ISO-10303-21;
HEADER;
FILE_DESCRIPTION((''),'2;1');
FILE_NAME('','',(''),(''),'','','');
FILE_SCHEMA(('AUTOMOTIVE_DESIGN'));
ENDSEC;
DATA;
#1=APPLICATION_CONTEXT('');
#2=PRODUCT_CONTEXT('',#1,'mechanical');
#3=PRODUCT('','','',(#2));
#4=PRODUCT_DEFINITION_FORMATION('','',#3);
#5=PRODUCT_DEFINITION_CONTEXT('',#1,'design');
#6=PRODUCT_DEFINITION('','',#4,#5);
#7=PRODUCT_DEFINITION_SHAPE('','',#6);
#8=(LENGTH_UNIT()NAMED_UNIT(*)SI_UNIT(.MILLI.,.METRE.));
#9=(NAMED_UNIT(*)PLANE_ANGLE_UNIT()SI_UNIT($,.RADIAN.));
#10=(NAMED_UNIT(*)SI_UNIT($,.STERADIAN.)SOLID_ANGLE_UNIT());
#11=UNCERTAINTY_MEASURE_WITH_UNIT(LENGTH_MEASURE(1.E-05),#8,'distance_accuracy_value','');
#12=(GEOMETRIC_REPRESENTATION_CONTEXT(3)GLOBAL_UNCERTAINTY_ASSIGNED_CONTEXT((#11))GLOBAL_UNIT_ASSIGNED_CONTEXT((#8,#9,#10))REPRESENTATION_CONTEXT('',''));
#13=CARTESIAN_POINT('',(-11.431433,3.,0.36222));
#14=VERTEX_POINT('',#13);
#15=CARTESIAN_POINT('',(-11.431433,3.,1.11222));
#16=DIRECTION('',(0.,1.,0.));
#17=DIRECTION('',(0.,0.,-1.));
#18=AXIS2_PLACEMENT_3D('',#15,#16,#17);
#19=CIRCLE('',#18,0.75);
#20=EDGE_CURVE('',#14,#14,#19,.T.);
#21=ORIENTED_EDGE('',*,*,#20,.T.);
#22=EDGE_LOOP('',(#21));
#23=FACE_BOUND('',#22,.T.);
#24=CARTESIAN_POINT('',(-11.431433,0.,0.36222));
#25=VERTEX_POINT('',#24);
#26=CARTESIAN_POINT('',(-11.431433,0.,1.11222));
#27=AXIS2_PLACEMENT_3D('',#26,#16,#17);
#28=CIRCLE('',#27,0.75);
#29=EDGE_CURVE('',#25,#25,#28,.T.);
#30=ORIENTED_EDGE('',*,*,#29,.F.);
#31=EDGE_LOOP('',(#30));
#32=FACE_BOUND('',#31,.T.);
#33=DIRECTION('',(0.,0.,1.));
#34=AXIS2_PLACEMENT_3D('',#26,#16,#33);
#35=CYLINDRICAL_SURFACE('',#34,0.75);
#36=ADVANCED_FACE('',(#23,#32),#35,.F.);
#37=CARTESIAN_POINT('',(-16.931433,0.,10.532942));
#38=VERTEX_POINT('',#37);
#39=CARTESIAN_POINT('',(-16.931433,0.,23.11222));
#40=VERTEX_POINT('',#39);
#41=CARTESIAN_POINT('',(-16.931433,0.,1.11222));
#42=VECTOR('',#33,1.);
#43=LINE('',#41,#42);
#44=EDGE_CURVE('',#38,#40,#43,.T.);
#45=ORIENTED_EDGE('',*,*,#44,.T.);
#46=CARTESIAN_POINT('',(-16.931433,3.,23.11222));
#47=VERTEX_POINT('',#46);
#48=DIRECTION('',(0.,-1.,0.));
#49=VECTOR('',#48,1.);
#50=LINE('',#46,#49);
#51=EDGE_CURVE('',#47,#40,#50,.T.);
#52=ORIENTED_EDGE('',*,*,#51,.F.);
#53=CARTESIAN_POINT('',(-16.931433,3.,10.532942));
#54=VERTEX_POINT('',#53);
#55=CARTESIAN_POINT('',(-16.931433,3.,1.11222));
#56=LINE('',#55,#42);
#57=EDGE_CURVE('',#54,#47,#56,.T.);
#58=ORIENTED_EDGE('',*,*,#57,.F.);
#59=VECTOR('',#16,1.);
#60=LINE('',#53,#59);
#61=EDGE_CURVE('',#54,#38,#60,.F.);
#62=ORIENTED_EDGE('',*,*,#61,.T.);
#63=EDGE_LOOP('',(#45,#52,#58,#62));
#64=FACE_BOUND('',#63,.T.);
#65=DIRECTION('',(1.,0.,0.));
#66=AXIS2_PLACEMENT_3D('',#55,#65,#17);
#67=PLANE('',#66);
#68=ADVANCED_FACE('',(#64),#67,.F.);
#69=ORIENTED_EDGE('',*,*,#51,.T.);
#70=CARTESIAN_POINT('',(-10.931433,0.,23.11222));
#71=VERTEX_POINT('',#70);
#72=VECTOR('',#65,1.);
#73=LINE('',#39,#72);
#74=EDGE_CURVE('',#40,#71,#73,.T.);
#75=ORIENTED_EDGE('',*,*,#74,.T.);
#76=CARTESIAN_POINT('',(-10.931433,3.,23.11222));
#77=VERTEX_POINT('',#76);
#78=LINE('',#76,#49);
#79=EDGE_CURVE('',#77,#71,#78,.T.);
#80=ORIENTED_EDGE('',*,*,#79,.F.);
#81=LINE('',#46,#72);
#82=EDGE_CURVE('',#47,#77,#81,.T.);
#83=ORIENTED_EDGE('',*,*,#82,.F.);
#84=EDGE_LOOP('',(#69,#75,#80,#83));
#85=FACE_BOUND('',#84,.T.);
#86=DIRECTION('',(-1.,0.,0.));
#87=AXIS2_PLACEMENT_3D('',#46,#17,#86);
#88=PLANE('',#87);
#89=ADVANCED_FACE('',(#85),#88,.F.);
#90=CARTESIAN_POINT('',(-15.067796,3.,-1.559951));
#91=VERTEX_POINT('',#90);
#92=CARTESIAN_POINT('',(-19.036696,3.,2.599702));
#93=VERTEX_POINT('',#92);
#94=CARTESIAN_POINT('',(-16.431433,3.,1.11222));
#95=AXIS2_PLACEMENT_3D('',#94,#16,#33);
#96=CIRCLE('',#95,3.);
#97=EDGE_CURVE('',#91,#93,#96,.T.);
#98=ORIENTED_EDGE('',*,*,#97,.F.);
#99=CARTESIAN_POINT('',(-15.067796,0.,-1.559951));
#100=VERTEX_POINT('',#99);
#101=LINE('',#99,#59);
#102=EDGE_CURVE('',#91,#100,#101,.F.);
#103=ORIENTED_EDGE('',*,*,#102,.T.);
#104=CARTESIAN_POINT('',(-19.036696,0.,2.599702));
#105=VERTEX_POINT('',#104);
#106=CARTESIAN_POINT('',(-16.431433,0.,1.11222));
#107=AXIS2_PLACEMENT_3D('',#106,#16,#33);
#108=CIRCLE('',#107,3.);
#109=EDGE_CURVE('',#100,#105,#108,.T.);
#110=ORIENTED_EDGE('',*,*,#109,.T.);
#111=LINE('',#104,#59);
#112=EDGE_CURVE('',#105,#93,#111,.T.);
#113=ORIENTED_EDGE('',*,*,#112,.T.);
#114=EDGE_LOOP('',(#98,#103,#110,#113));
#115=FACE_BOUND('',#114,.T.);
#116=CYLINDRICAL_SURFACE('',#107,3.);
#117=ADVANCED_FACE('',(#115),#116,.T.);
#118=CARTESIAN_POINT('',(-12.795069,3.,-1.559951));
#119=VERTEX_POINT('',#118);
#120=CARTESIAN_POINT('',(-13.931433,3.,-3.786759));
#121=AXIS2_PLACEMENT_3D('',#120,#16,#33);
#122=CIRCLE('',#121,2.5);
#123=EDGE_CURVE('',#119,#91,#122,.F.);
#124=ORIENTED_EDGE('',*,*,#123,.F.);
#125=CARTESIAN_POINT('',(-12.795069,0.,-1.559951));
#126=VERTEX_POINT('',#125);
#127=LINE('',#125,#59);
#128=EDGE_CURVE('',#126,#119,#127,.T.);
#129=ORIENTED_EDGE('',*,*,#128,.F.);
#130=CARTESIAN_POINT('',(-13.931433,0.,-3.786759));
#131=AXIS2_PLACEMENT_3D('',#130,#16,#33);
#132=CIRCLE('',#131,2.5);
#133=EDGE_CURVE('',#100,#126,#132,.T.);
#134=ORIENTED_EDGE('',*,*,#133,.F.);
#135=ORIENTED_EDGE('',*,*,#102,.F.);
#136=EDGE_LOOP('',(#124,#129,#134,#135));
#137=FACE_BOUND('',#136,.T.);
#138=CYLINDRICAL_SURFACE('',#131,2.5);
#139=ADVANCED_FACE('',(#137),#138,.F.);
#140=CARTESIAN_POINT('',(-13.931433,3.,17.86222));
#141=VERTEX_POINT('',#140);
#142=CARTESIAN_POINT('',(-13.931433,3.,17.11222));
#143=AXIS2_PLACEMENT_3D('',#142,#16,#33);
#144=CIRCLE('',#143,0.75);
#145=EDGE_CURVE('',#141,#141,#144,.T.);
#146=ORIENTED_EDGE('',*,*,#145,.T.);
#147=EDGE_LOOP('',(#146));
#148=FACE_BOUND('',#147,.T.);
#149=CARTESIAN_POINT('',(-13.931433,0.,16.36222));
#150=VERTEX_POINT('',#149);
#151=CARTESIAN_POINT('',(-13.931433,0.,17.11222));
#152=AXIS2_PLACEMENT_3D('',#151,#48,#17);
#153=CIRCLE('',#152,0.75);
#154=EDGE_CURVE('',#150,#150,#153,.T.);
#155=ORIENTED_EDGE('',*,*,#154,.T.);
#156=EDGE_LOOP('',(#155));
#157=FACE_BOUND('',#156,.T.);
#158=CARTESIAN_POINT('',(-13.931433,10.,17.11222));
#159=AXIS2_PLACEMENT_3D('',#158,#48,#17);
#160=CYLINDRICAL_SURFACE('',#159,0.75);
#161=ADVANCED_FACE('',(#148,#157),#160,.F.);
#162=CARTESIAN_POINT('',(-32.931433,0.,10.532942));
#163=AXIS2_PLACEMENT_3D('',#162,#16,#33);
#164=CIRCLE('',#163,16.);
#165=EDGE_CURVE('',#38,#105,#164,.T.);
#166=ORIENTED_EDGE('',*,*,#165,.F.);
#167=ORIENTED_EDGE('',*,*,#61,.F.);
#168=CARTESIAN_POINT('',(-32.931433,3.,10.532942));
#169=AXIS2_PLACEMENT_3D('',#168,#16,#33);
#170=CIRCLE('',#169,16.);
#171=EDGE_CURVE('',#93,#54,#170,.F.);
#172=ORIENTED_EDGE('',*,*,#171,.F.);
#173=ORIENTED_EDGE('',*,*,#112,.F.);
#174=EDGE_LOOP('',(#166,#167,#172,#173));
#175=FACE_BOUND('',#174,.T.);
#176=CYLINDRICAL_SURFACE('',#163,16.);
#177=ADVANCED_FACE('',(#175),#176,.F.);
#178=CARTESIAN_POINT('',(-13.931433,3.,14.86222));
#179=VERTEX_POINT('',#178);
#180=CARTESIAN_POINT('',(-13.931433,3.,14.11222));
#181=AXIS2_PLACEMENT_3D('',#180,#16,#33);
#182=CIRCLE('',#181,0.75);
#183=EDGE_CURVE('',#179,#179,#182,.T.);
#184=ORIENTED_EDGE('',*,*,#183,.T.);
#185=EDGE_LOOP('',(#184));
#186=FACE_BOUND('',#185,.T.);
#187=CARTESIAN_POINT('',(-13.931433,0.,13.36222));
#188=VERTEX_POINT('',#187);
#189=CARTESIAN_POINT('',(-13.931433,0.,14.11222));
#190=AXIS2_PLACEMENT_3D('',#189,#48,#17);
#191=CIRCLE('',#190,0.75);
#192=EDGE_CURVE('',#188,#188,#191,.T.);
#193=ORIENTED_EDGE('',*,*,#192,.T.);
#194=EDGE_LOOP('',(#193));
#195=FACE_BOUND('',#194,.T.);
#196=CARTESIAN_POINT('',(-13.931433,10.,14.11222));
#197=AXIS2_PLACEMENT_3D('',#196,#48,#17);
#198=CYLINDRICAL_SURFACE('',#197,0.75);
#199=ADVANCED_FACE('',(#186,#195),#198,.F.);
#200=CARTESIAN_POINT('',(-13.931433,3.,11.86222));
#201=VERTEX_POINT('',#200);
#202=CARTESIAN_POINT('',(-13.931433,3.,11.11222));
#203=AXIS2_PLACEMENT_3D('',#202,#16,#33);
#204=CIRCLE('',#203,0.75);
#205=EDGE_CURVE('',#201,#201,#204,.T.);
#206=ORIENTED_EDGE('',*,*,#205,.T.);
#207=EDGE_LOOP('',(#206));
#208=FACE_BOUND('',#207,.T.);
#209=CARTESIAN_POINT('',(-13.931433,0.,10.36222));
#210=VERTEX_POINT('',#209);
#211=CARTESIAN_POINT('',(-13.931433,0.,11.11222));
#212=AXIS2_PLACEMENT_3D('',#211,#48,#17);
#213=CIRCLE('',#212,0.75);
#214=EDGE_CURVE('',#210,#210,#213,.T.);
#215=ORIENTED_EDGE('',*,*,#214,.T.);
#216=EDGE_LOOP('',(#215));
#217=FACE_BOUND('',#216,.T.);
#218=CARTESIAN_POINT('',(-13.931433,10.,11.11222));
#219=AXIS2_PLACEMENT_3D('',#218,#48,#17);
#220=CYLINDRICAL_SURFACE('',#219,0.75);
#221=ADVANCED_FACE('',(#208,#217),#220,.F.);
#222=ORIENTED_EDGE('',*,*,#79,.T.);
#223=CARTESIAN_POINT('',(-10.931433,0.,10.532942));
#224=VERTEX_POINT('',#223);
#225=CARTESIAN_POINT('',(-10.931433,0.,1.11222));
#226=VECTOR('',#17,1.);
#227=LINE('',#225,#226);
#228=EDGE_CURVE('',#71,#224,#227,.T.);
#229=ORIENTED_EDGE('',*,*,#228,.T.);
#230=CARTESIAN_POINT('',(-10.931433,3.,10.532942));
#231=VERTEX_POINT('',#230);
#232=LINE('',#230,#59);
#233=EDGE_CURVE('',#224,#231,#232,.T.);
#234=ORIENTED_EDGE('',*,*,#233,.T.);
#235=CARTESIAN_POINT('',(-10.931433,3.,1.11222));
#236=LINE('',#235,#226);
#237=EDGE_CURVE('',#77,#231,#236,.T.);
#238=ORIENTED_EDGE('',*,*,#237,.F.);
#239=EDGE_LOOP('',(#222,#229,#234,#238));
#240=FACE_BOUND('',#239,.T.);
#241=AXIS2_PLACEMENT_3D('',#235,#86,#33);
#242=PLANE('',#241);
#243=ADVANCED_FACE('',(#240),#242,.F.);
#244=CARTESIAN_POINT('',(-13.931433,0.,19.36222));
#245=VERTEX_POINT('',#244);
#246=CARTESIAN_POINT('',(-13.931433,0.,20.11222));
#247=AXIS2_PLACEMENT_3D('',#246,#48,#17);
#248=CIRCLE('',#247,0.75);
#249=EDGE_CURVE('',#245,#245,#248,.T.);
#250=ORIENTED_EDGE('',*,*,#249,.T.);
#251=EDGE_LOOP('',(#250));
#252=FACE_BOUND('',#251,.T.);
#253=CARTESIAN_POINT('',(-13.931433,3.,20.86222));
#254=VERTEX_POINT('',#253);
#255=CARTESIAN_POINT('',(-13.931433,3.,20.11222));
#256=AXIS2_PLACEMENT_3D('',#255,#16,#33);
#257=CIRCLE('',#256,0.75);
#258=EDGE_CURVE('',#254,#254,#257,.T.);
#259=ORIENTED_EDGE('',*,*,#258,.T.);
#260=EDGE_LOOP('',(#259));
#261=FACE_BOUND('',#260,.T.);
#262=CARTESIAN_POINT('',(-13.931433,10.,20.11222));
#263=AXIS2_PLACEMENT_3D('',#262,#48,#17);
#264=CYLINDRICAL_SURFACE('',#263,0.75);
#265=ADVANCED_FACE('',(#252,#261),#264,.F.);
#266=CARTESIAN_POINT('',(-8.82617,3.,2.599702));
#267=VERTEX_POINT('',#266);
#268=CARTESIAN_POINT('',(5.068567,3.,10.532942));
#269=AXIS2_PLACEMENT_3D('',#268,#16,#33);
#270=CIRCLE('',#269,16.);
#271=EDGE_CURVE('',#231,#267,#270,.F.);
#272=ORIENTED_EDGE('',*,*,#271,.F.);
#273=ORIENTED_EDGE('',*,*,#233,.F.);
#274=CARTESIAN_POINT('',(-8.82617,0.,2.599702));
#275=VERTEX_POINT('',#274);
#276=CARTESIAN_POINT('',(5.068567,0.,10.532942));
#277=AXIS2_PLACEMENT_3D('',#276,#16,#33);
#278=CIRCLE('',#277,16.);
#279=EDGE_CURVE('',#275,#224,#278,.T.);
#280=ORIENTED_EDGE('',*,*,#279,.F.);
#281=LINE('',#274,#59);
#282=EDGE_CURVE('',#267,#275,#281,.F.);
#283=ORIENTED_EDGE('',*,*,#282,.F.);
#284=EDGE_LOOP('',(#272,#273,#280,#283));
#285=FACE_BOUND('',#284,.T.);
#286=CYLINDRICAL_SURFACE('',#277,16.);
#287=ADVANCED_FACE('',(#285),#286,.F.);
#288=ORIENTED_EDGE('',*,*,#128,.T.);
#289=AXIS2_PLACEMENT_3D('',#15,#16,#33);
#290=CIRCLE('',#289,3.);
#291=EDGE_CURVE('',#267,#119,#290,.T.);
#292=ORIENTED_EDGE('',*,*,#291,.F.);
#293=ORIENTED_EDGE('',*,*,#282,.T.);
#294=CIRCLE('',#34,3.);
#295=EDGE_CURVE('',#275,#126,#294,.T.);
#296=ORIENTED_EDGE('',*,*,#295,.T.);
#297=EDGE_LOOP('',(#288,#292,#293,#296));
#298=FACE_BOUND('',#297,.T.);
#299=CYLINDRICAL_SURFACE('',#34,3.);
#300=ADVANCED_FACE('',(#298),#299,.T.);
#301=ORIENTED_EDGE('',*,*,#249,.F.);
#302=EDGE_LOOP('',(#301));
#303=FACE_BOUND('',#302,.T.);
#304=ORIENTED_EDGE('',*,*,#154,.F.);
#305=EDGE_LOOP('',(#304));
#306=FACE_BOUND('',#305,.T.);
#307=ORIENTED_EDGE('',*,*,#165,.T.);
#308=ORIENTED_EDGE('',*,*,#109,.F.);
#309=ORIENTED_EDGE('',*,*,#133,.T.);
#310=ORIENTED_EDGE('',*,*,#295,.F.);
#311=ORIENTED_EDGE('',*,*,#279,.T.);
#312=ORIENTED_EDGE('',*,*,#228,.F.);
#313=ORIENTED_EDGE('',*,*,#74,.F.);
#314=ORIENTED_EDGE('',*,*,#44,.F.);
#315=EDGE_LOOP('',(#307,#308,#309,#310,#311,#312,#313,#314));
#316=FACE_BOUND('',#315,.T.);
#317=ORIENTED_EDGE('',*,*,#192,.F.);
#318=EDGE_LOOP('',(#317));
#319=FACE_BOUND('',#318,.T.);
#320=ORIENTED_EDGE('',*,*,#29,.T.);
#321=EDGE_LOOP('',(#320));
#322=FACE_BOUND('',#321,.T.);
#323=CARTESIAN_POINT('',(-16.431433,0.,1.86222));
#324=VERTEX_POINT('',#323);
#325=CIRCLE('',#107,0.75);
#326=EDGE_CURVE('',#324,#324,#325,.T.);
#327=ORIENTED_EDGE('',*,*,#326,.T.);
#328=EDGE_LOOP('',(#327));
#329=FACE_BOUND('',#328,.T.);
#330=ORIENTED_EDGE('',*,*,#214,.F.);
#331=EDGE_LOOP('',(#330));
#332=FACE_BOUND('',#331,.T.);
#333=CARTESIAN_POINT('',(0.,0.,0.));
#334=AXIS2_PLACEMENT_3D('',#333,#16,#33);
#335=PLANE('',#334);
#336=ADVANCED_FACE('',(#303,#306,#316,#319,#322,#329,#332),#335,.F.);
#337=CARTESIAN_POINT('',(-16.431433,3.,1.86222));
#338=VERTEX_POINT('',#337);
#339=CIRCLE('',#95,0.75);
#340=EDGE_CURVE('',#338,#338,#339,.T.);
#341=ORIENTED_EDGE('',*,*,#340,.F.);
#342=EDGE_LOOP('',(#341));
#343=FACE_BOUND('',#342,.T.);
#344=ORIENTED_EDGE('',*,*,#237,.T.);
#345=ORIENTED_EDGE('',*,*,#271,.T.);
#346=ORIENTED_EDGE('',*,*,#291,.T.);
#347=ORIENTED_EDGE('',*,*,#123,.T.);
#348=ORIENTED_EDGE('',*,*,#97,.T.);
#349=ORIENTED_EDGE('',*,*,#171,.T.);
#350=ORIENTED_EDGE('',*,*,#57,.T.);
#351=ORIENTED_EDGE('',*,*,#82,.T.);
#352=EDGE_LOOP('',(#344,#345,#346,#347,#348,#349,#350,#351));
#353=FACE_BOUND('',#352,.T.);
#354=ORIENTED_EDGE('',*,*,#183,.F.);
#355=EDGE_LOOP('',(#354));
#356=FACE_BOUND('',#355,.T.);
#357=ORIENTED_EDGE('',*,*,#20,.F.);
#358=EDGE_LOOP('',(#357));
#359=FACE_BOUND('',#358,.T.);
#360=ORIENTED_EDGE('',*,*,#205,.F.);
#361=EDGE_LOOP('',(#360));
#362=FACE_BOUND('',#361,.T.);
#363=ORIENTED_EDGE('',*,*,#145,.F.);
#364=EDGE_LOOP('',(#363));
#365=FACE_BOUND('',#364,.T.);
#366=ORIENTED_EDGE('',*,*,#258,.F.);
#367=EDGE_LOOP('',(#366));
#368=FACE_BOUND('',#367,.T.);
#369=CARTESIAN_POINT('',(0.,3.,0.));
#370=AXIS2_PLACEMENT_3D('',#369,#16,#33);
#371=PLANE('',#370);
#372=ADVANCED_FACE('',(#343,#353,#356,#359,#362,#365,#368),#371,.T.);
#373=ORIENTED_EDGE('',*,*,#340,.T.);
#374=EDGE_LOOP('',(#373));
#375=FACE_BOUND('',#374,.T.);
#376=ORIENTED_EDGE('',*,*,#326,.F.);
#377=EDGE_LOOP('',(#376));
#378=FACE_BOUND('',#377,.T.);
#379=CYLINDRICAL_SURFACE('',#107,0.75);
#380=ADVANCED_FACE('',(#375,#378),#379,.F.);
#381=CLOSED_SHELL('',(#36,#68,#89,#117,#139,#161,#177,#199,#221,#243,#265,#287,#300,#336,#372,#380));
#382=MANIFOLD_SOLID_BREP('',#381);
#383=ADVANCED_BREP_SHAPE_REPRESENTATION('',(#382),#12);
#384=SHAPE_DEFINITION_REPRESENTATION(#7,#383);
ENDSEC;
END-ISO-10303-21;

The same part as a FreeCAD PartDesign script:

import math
import FreeCAD as App
import Part
import Sketcher
from FreeCAD import Vector


def edges_at(feature, points):
    """Names of the edges that pass closest to the given points."""
    edges = feature.Shape.Edges
    near = lambda p: min(range(len(edges)), key=lambda i: edges[i].distToShape(Part.Vertex(*p))[0])
    return sorted({f"Edge{near(p) + 1}" for p in points})

doc = App.newDocument("Part")
body = doc.addObject("PartDesign::Body", "Body")

# Sketch on XZ plane
sketch1 = body.newObject("Sketcher::SketchObject", "Sketch")
sketch1.AttachmentSupport = (doc.getObject("XZ_Plane"), [""])
sketch1.MapMode = "FlatFace"
sketch1.addGeometry([
    Part.LineSegment(Vector(-17, 1, 0), Vector(-17, 23, 0)),
    Part.LineSegment(Vector(-17, 23, 0), Vector(-11, 23, 0)),
    Part.LineSegment(Vector(-11, 23, 0), Vector(-11, 1, 0)),
    Part.LineSegment(Vector(-11, 1, 0), Vector(-17, 1, 0)),
], False)
sketch1.addConstraint([
    Sketcher.Constraint("Coincident", 0, 2, 1, 1),
    Sketcher.Constraint("Coincident", 1, 2, 2, 1),
    Sketcher.Constraint("Coincident", 2, 2, 3, 1),
    Sketcher.Constraint("Coincident", 3, 2, 0, 1),
    Sketcher.Constraint("Vertical", 0),
    Sketcher.Constraint("Horizontal", 1),
    Sketcher.Constraint("Vertical", 2),
    Sketcher.Constraint("Horizontal", 3),
    Sketcher.Constraint("DistanceX", 1, 1, 1, 2, 6.0),
    Sketcher.Constraint("DistanceY", 0, 1, 0, 2, 22.0),
    Sketcher.Constraint("DistanceY", -1, 1, 0, 2, 23.11222),
    Sketcher.Constraint("DistanceX", 0, 2, -1, 1, 16.931433),
])
pad1 = body.newObject("PartDesign::Pad", "Pad")
pad1.Profile = sketch1
pad1.Length = 3
pad1.Reversed = True

# Sketch on XZ plane
sketch2 = body.newObject("Sketcher::SketchObject", "Sketch001")
sketch2.AttachmentSupport = (doc.getObject("XZ_Plane"), [""])
sketch2.MapMode = "FlatFace"
sketch2.AttachmentOffset = App.Placement(Vector(0, 0, -3), App.Rotation())
sketch2.addGeometry([
    Part.ArcOfCircle(Part.Circle(Vector(-11.4, 1.1, 0), Vector(0, 0, 1), 3), math.radians(-146), math.radians(146)),
    Part.ArcOfCircle(Part.Circle(Vector(-16.4, 1.1, 0), Vector(0, 0, 1), 3), math.radians(34), math.radians(326)),
], False)
sketch2.addConstraint([
    Sketcher.Constraint("Coincident", 0, 1, 1, 2),
    Sketcher.Constraint("Coincident", 1, 1, 0, 2),
    Sketcher.Constraint("Equal", 0, 1),
    Sketcher.Constraint("Horizontal", 0, 3, 1, 3),
    Sketcher.Constraint("Radius", 0, 3.0),
    Sketcher.Constraint("DistanceX", 1, 3, 0, 3, 5.0),
    Sketcher.Constraint("DistanceY", -1, 1, 0, 3, 1.11222),
    Sketcher.Constraint("DistanceX", 0, 3, -1, 1, 11.431433),
])
pad2 = body.newObject("PartDesign::Pad", "Pad001")
pad2.Profile = sketch2
pad2.Length = 3
doc.recompute()

fillet = body.newObject("PartDesign::Fillet", "Fillet")
fillet.Base = (pad2, edges_at(pad2, [(-13.931, 1.5, -0.546)]))
fillet.Radius = 2.5

# Sketch on XZ plane
sketch3 = body.newObject("Sketcher::SketchObject", "Sketch002")
sketch3.AttachmentSupport = (doc.getObject("XZ_Plane"), [""])
sketch3.MapMode = "FlatFace"
sketch3.AttachmentOffset = App.Placement(Vector(0, 0, -3), App.Rotation())
sketch3.addGeometry([
    Part.Circle(Vector(-16.4, 1.1, 0), Vector(0, 0, 1), 0.8),
    Part.Circle(Vector(-11.4, 1.1, 0), Vector(0, 0, 1), 0.8),
], False)
sketch3.addConstraint([
    Sketcher.Constraint("Equal", 0, 1),
    Sketcher.Constraint("Horizontal", 0, 3, 1, 3),
    Sketcher.Constraint("Diameter", 0, 1.5),
    Sketcher.Constraint("DistanceX", 0, 3, 1, 3, 5.0),
    Sketcher.Constraint("DistanceY", -1, 1, 0, 3, 1.11222),
    Sketcher.Constraint("DistanceX", 0, 3, -1, 1, 16.431433),
])
pocket1 = body.newObject("PartDesign::Pocket", "Pocket")
pocket1.Profile = sketch3
pocket1.Length = 3
pocket1.Reversed = True

# Sketch on XZ plane
sketch4 = body.newObject("Sketcher::SketchObject", "Sketch003")
sketch4.AttachmentSupport = (doc.getObject("XZ_Plane"), [""])
sketch4.MapMode = "FlatFace"
sketch4.addGeometry([
    Part.Circle(Vector(-13.9, 20.1, 0), Vector(0, 0, 1), 0.8),
    Part.Circle(Vector(-13.9, 17.1, 0), Vector(0, 0, 1), 0.8),
    Part.Circle(Vector(-13.9, 14.1, 0), Vector(0, 0, 1), 0.8),
    Part.Circle(Vector(-13.9, 11.1, 0), Vector(0, 0, 1), 0.8),
], False)
sketch4.addConstraint([
    Sketcher.Constraint("Equal", 0, 1),
    Sketcher.Constraint("Equal", 1, 2),
    Sketcher.Constraint("Equal", 2, 3),
    Sketcher.Constraint("Vertical", 0, 3, 1, 3),
    Sketcher.Constraint("Vertical", 1, 3, 2, 3),
    Sketcher.Constraint("Vertical", 2, 3, 3, 3),
    Sketcher.Constraint("Diameter", 0, 1.5),
    Sketcher.Constraint("DistanceY", 1, 3, 0, 3, 3.0),
    Sketcher.Constraint("DistanceY", 2, 3, 1, 3, 3.0),
    Sketcher.Constraint("DistanceY", 3, 3, 2, 3, 3.0),
    Sketcher.Constraint("DistanceY", -1, 1, 0, 3, 20.11222),
    Sketcher.Constraint("DistanceX", 0, 3, -1, 1, 13.931433),
])
pocket2 = body.newObject("PartDesign::Pocket", "Pocket001")
pocket2.Profile = sketch4
pocket2.Length = 10
doc.recompute()

fillet2 = body.newObject("PartDesign::Fillet", "Fillet001")
fillet2.Base = (pocket2, edges_at(pocket2, [(-10.931, 1.5, 4.07), (-16.931, 1.5, 4.07)]))
fillet2.Radius = 16

doc.recompute()
